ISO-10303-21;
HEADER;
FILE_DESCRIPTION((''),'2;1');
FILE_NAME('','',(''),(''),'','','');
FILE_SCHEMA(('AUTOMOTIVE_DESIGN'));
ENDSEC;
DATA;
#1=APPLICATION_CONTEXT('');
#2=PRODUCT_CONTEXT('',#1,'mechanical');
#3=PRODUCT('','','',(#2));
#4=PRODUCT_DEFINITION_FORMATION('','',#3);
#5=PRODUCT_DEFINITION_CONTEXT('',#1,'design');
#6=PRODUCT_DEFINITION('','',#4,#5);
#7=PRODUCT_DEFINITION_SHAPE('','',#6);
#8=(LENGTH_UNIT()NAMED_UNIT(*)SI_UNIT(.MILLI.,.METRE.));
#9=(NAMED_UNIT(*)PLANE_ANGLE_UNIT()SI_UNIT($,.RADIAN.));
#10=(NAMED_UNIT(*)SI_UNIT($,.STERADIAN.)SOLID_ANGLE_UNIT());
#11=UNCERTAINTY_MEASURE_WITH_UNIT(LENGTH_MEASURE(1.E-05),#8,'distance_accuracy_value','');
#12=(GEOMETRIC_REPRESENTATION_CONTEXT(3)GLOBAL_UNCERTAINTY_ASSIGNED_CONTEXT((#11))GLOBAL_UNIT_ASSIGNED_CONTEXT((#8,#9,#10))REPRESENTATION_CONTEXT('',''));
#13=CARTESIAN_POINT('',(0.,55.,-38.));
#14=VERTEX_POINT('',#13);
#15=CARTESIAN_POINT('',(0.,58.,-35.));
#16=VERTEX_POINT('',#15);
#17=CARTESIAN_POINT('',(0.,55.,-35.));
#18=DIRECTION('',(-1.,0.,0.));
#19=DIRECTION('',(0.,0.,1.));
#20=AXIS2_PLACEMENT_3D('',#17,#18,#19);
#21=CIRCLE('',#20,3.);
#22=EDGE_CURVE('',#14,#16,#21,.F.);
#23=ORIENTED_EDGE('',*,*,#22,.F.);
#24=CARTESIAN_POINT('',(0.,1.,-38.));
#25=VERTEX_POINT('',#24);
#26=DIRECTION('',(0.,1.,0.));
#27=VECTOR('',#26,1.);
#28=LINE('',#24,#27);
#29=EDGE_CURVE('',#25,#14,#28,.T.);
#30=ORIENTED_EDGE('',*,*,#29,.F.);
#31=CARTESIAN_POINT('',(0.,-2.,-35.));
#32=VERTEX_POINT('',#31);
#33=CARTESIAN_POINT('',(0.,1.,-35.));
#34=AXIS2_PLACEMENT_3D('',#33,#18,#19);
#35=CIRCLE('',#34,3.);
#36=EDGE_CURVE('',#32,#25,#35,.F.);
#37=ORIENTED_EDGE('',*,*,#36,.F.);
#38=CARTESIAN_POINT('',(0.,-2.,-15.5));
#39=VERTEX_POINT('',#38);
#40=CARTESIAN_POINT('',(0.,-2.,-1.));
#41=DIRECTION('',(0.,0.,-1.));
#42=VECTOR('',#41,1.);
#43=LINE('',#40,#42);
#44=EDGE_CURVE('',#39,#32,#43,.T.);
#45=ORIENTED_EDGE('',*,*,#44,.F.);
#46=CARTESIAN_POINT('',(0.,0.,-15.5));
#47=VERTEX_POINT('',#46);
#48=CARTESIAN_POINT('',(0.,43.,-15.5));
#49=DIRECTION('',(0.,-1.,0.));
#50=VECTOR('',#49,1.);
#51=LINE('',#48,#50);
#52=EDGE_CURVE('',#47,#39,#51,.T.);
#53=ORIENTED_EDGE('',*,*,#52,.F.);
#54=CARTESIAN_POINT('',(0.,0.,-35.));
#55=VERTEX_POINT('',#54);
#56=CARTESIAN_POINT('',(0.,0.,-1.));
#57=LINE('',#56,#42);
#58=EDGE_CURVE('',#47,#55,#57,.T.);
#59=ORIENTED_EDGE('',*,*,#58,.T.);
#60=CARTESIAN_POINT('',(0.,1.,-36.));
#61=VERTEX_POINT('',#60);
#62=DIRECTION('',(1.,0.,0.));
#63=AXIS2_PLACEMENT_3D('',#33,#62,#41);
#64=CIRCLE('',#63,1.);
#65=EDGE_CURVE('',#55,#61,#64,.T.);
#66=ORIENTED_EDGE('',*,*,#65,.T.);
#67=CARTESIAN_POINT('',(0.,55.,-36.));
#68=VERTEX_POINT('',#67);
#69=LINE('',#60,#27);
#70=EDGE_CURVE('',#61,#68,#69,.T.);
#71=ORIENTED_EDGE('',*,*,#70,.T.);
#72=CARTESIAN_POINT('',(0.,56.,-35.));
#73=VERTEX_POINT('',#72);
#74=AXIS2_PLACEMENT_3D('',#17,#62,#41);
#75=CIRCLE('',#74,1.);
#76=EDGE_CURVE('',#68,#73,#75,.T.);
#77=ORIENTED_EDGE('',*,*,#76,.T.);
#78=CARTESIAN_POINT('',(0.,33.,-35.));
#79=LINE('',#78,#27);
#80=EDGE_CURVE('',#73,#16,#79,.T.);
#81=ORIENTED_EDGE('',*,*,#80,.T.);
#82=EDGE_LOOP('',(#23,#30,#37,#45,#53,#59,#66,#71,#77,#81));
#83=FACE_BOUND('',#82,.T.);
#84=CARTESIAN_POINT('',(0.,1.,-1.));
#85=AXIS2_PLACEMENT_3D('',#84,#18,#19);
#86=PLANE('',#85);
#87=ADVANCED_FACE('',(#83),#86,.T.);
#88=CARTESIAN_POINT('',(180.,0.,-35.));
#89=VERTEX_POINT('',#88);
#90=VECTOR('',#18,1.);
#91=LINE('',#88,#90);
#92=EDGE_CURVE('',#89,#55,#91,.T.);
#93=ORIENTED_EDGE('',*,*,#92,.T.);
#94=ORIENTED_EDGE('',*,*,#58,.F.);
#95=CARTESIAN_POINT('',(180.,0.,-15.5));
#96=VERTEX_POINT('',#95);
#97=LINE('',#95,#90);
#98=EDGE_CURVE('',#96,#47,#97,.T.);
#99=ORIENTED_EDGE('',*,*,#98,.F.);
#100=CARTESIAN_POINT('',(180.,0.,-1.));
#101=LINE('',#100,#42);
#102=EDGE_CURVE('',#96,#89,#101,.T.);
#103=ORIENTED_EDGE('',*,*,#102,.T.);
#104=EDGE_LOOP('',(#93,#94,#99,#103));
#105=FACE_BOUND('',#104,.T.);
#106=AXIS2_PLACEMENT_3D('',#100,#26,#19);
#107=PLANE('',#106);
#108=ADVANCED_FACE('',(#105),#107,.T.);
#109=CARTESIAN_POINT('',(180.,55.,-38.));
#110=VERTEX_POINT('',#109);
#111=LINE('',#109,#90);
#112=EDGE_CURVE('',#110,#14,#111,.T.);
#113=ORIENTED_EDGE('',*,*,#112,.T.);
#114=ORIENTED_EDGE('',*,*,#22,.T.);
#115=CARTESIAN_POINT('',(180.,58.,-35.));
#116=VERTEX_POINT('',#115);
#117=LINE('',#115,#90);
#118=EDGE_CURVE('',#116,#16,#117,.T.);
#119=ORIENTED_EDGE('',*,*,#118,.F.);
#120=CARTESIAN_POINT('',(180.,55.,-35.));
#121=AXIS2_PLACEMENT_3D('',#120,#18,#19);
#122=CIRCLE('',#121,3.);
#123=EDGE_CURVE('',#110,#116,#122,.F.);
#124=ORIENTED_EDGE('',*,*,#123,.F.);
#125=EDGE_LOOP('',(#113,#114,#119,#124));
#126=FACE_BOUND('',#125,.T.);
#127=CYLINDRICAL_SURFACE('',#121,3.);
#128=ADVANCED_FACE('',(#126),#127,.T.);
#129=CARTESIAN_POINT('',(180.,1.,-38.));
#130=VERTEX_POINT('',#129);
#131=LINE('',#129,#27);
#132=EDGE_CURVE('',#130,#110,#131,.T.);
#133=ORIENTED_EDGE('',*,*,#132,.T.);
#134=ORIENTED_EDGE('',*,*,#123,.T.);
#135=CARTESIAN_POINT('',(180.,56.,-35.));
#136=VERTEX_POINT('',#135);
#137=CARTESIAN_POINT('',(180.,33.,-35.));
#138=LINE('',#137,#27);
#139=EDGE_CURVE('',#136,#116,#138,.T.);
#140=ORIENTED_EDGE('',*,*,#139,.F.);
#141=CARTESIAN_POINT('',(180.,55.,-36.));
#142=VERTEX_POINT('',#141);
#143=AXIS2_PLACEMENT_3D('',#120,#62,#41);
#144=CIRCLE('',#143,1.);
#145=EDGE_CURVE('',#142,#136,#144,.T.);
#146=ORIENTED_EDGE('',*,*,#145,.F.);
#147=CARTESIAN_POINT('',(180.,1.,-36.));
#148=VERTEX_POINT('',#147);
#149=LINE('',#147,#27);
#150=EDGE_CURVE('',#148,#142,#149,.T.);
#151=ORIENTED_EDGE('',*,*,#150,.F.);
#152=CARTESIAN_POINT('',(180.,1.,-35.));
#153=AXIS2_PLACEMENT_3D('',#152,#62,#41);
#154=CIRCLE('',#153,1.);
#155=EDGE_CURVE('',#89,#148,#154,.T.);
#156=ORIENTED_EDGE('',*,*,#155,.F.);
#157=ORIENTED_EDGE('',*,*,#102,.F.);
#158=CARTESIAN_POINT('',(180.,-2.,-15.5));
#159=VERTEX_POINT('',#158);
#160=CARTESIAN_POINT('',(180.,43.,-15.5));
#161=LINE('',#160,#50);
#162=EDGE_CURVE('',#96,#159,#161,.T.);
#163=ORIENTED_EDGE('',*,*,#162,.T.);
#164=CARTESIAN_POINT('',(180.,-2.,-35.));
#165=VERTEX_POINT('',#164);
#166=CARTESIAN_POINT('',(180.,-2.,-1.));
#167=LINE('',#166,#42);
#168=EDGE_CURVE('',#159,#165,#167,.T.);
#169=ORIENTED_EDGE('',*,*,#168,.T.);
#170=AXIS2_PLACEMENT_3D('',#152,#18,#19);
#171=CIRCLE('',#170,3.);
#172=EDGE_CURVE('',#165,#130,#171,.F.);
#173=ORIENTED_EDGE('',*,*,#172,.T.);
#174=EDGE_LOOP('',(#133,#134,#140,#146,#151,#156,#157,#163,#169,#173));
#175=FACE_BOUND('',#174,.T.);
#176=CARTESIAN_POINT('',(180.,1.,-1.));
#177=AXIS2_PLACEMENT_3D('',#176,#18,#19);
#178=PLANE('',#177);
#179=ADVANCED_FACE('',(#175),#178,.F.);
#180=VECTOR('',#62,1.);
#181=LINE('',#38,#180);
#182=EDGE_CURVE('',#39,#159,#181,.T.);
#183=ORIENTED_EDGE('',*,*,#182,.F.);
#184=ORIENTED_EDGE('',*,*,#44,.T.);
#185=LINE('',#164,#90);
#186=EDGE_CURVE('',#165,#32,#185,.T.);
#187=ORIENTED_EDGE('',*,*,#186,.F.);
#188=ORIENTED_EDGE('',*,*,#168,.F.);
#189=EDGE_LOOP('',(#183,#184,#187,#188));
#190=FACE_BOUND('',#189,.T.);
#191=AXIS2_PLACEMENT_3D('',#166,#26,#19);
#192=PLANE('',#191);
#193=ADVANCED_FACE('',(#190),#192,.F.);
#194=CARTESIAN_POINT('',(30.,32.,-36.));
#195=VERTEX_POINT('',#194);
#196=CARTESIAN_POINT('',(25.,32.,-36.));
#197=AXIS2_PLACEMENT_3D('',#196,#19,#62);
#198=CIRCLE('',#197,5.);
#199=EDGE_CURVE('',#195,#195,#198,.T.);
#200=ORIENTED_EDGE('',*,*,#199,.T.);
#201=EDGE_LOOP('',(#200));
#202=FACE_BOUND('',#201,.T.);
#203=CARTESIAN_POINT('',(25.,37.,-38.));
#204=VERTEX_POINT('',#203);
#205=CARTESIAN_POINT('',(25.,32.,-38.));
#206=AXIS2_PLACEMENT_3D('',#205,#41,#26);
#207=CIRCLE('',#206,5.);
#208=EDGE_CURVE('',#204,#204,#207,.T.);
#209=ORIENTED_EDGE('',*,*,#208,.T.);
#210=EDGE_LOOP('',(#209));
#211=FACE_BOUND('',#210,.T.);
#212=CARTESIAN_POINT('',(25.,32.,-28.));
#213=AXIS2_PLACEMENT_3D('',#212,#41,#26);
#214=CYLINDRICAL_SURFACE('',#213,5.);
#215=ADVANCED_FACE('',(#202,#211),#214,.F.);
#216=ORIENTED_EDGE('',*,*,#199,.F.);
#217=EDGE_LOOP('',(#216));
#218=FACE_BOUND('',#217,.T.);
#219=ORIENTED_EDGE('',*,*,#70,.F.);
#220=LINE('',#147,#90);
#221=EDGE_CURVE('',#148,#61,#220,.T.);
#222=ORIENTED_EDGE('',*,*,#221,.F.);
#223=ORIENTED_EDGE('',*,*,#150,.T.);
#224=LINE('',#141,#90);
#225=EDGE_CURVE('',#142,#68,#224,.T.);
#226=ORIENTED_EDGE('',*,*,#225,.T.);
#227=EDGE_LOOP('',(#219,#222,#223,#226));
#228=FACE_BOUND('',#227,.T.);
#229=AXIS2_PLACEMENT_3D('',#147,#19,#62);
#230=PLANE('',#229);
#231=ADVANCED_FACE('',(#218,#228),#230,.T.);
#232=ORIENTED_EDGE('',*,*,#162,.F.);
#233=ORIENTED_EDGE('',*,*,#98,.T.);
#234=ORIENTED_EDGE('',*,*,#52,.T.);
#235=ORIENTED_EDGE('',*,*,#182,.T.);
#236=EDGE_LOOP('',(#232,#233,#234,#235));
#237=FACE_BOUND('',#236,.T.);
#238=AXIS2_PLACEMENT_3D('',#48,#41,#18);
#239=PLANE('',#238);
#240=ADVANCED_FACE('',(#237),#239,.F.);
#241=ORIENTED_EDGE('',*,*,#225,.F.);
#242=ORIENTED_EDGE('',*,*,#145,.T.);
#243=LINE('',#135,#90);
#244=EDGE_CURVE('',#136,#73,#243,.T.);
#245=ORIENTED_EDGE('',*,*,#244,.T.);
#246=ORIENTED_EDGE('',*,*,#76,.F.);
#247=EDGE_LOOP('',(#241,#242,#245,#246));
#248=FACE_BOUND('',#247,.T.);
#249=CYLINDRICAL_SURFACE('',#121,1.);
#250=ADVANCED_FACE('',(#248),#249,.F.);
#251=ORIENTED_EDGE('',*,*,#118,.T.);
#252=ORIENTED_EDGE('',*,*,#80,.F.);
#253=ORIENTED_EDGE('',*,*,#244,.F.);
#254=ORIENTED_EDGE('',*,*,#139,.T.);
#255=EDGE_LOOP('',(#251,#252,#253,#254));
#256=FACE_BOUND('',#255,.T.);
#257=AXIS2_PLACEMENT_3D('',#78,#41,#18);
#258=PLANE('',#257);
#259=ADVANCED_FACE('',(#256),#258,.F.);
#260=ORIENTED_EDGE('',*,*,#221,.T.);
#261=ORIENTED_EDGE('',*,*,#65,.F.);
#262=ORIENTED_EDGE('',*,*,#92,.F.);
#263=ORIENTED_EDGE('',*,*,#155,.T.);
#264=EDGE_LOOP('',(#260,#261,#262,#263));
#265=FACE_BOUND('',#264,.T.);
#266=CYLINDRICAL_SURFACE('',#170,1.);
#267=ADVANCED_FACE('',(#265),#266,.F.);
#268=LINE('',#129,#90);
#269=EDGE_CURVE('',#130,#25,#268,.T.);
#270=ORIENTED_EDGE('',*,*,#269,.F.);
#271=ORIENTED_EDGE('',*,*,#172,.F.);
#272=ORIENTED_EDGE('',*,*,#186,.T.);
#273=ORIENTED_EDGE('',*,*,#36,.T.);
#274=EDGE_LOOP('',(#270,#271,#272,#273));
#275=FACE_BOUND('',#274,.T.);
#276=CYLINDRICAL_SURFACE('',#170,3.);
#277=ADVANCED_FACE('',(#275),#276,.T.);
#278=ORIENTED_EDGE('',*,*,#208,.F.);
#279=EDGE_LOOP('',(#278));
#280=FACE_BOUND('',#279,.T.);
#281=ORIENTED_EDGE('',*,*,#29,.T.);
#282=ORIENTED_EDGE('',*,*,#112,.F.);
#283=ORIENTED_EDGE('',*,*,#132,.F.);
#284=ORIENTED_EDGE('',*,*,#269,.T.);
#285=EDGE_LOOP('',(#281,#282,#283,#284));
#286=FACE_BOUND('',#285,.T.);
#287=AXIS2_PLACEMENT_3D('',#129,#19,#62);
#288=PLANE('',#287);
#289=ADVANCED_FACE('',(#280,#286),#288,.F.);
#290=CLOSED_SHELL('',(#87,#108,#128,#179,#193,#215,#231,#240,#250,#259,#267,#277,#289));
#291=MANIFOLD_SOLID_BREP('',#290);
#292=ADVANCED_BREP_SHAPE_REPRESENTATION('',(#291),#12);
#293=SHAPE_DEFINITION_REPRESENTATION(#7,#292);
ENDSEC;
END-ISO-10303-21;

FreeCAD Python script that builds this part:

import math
import FreeCAD as App
import Part
import Sketcher
Q = App.Units.Quantity


def add_polygon(sketch, points):
    """Adds a closed chain of lines whose ends are joined by coincident constraints."""
    first, n = sketch.GeometryCount, len(points)
    for a, b in zip(points, points[1:] + points[:1]):
        sketch.addGeometry(Part.LineSegment(App.Vector(*a, 0), App.Vector(*b, 0)), False)
    for i in range(n):
        sketch.addConstraint(Sketcher.Constraint("Coincident", first + i, 2, first + (i + 1) % n, 1))

doc = App.newDocument("Part")
body = doc.addObject("PartDesign::Body", "Body")

sketch1 = body.newObject("Sketcher::SketchObject", "Sketch")
sketch1.AttachmentSupport = (doc.getObject("YZ_Plane"), [""])
sketch1.MapMode = "FlatFace"
sketch1.addGeometry([
    Part.LineSegment(App.Vector(55, 2, 0), App.Vector(1, 2, 0)),
    Part.ArcOfCircle(Part.Circle(App.Vector(1, -1, 0), App.Vector(0, 0, 1), 3), math.radians(90), math.radians(180)),
    Part.LineSegment(App.Vector(-2, -1, 0), App.Vector(-2, -35, 0)),
    Part.ArcOfCircle(Part.Circle(App.Vector(1, -35, 0), App.Vector(0, 0, 1), 3), math.radians(180), math.radians(270)),
    Part.LineSegment(App.Vector(1, -38, 0), App.Vector(55, -38, 0)),
    Part.ArcOfCircle(Part.Circle(App.Vector(55, -35, 0), App.Vector(0, 0, 1), 3), math.radians(-90), math.radians(0)),
    Part.LineSegment(App.Vector(58, -35, 0), App.Vector(58, -1, 0)),
    Part.ArcOfCircle(Part.Circle(App.Vector(55, -1, 0), App.Vector(0, 0, 1), 3), math.radians(0), math.radians(90)),
    Part.LineSegment(App.Vector(1, 0, 0), App.Vector(55, 0, 0)),
    Part.ArcOfCircle(Part.Circle(App.Vector(55, -1, 0), App.Vector(0, 0, 1), 1), math.radians(0), math.radians(90)),
    Part.LineSegment(App.Vector(56, -1, 0), App.Vector(56, -35, 0)),
    Part.ArcOfCircle(Part.Circle(App.Vector(55, -35, 0), App.Vector(0, 0, 1), 1), math.radians(-90), math.radians(0)),
    Part.LineSegment(App.Vector(55, -36, 0), App.Vector(1, -36, 0)),
    Part.ArcOfCircle(Part.Circle(App.Vector(1, -35, 0), App.Vector(0, 0, 1), 1), math.radians(-180), math.radians(-90)),
    Part.LineSegment(App.Vector(0, -35, 0), App.Vector(0, -1, 0)),
    Part.ArcOfCircle(Part.Circle(App.Vector(1, -1, 0), App.Vector(0, 0, 1), 1), math.radians(90), math.radians(180)),
], False)
sketch1.addConstraint([
    Sketcher.Constraint("Tangent", 0, 2, 1, 1),
    Sketcher.Constraint("Tangent", 1, 2, 2, 1),
    Sketcher.Constraint("Tangent", 2, 2, 3, 1),
    Sketcher.Constraint("Tangent", 3, 2, 4, 1),
    Sketcher.Constraint("Tangent", 4, 2, 5, 1),
    Sketcher.Constraint("Tangent", 5, 2, 6, 1),
    Sketcher.Constraint("Tangent", 6, 2, 7, 1),
    Sketcher.Constraint("Tangent", 7, 2, 0, 1),
    Sketcher.Constraint("Tangent", 8, 2, 9, 2),
    Sketcher.Constraint("Tangent", 9, 1, 10, 1),
    Sketcher.Constraint("Tangent", 10, 2, 11, 2),
    Sketcher.Constraint("Tangent", 11, 1, 12, 1),
    Sketcher.Constraint("Tangent", 12, 2, 13, 2),
    Sketcher.Constraint("Tangent", 13, 1, 14, 1),
    Sketcher.Constraint("Tangent", 14, 2, 15, 2),
    Sketcher.Constraint("Tangent", 15, 1, 8, 1),
    Sketcher.Constraint("Horizontal", 0),
    Sketcher.Constraint("Vertical", 2),
    Sketcher.Constraint("Horizontal", 4),
    Sketcher.Constraint("Vertical", 6),
    Sketcher.Constraint("Horizontal", 8),
    Sketcher.Constraint("Vertical", 10),
    Sketcher.Constraint("Horizontal", 12),
    Sketcher.Constraint("Vertical", 14),
    Sketcher.Constraint("Coincident", 9, 3, 7, 3),
    Sketcher.Constraint("Coincident", 11, 3, 5, 3),
    Sketcher.Constraint("Coincident", 13, 3, 3, 3),
    Sketcher.Constraint("Equal", 1, 3),
    Sketcher.Constraint("Equal", 3, 5),
    Sketcher.Constraint("Equal", 5, 7),
    Sketcher.Constraint("Equal", 13, 15),
    Sketcher.Constraint("PointOnObject", 8, 2, -1),
    Sketcher.Constraint("PointOnObject", 13, 1, -2),
    Sketcher.Constraint("Radius", 1, Q("3 mm")),
    Sketcher.Constraint("Radius", 9, Q("1 mm")),
    Sketcher.Constraint("DistanceX", 0, 2, 0, 1, Q("54 mm")),
    Sketcher.Constraint("DistanceY", 2, 2, 2, 1, Q("34 mm")),
])
pad1 = body.newObject("PartDesign::Pad", "Pad")
pad1.Profile = sketch1
pad1.Length = 180

sketch2 = body.newObject("Sketcher::SketchObject", "Sketch001")
sketch2.AttachmentSupport = (doc.getObject("XZ_Plane"), [""])
sketch2.MapMode = "FlatFace"
sketch2.AttachmentOffset = App.Placement(App.Vector(0, 0, 2), App.Rotation())
add_polygon(sketch2, [(0, 2), (0, -15.5), (180, -15.5), (180, 2)])
sketch2.addConstraint([
    Sketcher.Constraint("Vertical", 0),
    Sketcher.Constraint("Horizontal", 1),
    Sketcher.Constraint("Vertical", 2),
    Sketcher.Constraint("Horizontal", 3),
    Sketcher.Constraint("PointOnObject", 0, 2, -2),
    Sketcher.Constraint("DistanceX", 1, 1, 1, 2, Q("180 mm")),
    Sketcher.Constraint("DistanceY", 0, 2, 0, 1, Q("17.5 mm")),
    Sketcher.Constraint("DistanceY", -1, 1, 2, 2, Q("2 mm")),
])
pocket1 = body.newObject("PartDesign::Pocket", "Pocket")
pocket1.Profile = sketch2
pocket1.Length = 45

sketch3 = body.newObject("Sketcher::SketchObject", "Sketch002")
sketch3.AttachmentSupport = (doc.getObject("XZ_Plane"), [""])
sketch3.MapMode = "FlatFace"
sketch3.AttachmentOffset = App.Placement(App.Vector(0, 0, -58), App.Rotation())
add_polygon(sketch3, [(0, -35), (0, 2), (180, 2), (180, -35)])
sketch3.addConstraint([
    Sketcher.Constraint("Vertical", 0),
    Sketcher.Constraint("Horizontal", 1),
    Sketcher.Constraint("Vertical", 2),
    Sketcher.Constraint("Horizontal", 3),
    Sketcher.Constraint("PointOnObject", 0, 2, -2),
    Sketcher.Constraint("DistanceX", 1, 1, 1, 2, Q("180 mm")),
    Sketcher.Constraint("DistanceY", 0, 1, 0, 2, Q("37 mm")),
    Sketcher.Constraint("DistanceY", -1, 1, 0, 2, Q("2 mm")),
])
pocket2 = body.newObject("PartDesign::Pocket", "Pocket001")
pocket2.Profile = sketch3
pocket2.Length = 25
pocket2.Reversed = True

sketch4 = body.newObject("Sketcher::SketchObject", "Sketch003")
sketch4.AttachmentSupport = (doc.getObject("XY_Plane"), [""])
sketch4.MapMode = "FlatFace"
sketch4.AttachmentOffset = App.Placement(App.Vector(0, 0, -38), App.Rotation())
sketch4.addGeometry(Part.Circle(App.Vector(25, 32, 0), App.Vector(0, 0, 1), 5), False)
sketch4.addConstraint([
    Sketcher.Constraint("Diameter", 0, Q("10 mm")),
    Sketcher.Constraint("DistanceX", -1, 1, 0, 3, Q("25 mm")),
    Sketcher.Constraint("DistanceY", -1, 1, 0, 3, Q("32 mm")),
])
pocket3 = body.newObject("PartDesign::Pocket", "Pocket002")
pocket3.Profile = sketch4
pocket3.Length = 10
pocket3.Reversed = True

doc.recompute()
